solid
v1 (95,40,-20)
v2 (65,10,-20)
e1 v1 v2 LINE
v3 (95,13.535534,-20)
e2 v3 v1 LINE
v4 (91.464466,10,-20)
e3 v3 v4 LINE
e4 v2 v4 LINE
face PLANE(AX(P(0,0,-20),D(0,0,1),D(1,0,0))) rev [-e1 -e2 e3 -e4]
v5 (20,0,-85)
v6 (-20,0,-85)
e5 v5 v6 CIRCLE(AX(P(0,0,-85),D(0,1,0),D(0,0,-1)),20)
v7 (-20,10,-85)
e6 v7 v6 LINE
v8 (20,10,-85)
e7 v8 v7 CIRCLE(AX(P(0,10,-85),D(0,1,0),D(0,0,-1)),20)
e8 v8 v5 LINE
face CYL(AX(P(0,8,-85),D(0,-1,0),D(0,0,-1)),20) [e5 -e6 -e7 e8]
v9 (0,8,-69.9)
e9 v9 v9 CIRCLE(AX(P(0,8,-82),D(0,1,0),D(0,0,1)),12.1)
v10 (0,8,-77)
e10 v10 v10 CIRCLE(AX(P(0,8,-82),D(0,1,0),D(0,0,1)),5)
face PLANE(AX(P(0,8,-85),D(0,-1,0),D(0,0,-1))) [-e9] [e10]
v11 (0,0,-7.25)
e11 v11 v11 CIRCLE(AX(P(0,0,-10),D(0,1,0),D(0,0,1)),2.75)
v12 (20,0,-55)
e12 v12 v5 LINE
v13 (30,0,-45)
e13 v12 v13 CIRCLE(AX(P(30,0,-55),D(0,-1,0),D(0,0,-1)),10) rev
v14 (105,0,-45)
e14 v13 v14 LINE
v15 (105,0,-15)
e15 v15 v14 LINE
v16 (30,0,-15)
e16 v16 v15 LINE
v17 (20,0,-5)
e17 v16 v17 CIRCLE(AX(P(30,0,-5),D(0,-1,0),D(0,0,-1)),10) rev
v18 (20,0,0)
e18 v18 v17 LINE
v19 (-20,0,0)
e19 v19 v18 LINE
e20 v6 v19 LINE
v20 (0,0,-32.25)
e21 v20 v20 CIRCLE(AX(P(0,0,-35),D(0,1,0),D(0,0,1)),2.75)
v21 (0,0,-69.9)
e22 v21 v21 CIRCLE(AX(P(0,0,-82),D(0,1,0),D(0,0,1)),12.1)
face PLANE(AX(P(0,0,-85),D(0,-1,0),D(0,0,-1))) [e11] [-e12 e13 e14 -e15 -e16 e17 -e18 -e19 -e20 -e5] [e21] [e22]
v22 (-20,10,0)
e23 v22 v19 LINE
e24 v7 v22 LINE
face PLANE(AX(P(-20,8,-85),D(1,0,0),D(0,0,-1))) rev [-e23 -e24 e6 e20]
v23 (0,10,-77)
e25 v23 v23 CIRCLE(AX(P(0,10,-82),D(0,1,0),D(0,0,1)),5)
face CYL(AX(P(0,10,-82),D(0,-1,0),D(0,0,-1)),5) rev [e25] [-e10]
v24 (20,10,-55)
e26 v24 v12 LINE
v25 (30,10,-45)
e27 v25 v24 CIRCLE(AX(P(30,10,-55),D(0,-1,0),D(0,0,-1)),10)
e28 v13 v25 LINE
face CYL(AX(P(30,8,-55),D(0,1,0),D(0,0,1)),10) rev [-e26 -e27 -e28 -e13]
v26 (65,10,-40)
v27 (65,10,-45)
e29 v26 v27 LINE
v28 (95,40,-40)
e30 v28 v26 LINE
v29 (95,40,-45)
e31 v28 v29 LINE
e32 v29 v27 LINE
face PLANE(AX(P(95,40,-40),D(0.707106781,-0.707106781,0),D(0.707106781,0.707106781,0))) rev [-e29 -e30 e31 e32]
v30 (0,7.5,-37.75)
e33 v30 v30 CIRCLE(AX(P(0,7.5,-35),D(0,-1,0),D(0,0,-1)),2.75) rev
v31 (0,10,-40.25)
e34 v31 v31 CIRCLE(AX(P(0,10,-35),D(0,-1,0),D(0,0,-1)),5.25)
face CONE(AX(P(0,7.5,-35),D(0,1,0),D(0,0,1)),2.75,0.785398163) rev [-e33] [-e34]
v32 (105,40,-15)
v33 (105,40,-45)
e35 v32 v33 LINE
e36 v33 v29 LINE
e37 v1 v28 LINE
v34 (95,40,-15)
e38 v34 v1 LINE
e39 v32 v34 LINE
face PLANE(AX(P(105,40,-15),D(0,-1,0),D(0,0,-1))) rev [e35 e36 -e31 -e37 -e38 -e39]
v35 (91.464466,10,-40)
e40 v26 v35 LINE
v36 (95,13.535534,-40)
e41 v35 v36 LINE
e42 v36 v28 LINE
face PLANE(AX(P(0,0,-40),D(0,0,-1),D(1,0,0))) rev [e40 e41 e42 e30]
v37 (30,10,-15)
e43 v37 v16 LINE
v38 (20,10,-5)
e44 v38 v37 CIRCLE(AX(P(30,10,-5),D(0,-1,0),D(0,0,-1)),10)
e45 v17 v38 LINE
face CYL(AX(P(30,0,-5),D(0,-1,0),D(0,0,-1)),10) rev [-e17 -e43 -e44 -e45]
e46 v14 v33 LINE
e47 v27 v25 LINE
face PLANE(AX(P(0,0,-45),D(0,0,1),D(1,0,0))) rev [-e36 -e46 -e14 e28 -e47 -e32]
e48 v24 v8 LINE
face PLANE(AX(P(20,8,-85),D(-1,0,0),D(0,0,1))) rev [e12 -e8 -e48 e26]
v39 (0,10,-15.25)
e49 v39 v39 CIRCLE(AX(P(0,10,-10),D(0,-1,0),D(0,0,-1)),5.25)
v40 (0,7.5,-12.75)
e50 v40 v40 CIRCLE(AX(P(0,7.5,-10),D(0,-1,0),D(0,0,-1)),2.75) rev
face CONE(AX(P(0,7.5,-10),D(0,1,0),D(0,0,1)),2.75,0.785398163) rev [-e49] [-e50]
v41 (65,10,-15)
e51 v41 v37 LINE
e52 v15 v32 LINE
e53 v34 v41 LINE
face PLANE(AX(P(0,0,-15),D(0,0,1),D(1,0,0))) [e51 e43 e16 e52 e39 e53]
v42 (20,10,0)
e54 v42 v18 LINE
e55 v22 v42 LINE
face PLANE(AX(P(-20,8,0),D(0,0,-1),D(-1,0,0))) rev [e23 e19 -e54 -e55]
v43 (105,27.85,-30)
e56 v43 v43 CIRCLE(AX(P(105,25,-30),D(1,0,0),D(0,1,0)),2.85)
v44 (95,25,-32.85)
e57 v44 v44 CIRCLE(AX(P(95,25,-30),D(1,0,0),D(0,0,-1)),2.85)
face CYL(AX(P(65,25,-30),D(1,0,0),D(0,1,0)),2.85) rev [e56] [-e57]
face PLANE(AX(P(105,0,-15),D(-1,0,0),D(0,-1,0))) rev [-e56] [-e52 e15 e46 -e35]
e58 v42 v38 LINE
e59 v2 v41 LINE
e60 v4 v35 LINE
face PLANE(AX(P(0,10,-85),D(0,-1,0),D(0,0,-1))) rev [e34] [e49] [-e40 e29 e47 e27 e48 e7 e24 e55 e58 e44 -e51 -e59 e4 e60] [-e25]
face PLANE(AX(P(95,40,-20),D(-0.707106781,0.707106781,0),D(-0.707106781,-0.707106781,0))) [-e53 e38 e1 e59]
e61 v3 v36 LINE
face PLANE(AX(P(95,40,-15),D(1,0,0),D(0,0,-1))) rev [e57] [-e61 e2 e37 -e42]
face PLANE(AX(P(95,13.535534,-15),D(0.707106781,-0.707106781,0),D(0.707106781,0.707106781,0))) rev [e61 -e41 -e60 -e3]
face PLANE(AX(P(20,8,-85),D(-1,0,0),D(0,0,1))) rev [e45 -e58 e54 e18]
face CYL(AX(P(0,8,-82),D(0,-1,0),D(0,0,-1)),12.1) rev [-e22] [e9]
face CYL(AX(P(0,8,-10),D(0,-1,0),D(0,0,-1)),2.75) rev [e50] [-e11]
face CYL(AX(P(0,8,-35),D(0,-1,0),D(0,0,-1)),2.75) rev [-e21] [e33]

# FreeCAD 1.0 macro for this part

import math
import FreeCAD as App
import Part
import Sketcher
from FreeCAD import Vector
Q = App.Units.Quantity


def edges_at(feature, points):
    """Names of the edges that pass closest to the given points."""
    edges = feature.Shape.Edges
    near = lambda p: min(range(len(edges)), key=lambda i: edges[i].distToShape(Part.Vertex(*p))[0])
    return sorted({f"Edge{near(p) + 1}" for p in points})


def add_polygon(sketch, points):
    """Adds a closed chain of lines whose ends are joined by coincident constraints."""
    first, n = sketch.GeometryCount, len(points)
    for a, b in zip(points, points[1:] + points[:1]):
        sketch.addGeometry(Part.LineSegment(App.Vector(*a, 0), App.Vector(*b, 0)), False)
    for i in range(n):
        sketch.addConstraint(Sketcher.Constraint("Coincident", first + i, 2, first + (i + 1) % n, 1))

doc = App.newDocument("Part")
body = doc.addObject("PartDesign::Body", "Body")

sketch1 = doc.addObject("Sketcher::SketchObject", "Sketch")
body.addObject(sketch1)
sketch1.AttachmentSupport = (doc.XZ_Plane, [""])
sketch1.MapMode = "FlatFace"
sketch1.addGeometry(Part.LineSegment(Vector(-20, 0, 0), Vector(20, 0, 0)), False)
sketch1.addGeometry(Part.LineSegment(Vector(20, 0, 0), Vector(20, -85, 0)), False)
sketch1.addGeometry(Part.ArcOfCircle(Part.Circle(Vector(0, -85, 0), Vector(0, 0, 1), 20), math.radians(180), math.radians(360)), False)
sketch1.addGeometry(Part.LineSegment(Vector(-20, -85, 0), Vector(-20, 0, 0)), False)
sketch1.addGeometry(Part.Circle(Vector(0, -10, 0), Vector(0, 0, 1), 2.8), False)
sketch1.addGeometry(Part.Circle(Vector(0, -35, 0), Vector(0, 0, 1), 2.8), False)
sketch1.addGeometry(Part.Circle(Vector(0, -82, 0), Vector(0, 0, 1), 12.1), False)
sketch1.addConstraint(Sketcher.Constraint("Coincident", 0, 2, 1, 1))
sketch1.addConstraint(Sketcher.Constraint("Tangent", 1, 2, 2, 2))
sketch1.addConstraint(Sketcher.Constraint("Tangent", 2, 1, 3, 1))
sketch1.addConstraint(Sketcher.Constraint("Coincident", 3, 2, 0, 1))
sketch1.addConstraint(Sketcher.Constraint("Horizontal", 0))
sketch1.addConstraint(Sketcher.Constraint("Vertical", 1))
sketch1.addConstraint(Sketcher.Constraint("Vertical", 3))
sketch1.addConstraint(Sketcher.Constraint("Equal", 4, 5))
sketch1.addConstraint(Sketcher.Constraint("Symmetric", 0, 2, 3, 2, -1, 1))
sketch1.addConstraint(Sketcher.Constraint("PointOnObject", 4, 3, -2))
sketch1.addConstraint(Sketcher.Constraint("PointOnObject", 5, 3, -2))
sketch1.addConstraint(Sketcher.Constraint("PointOnObject", 6, 3, -2))
sketch1.addConstraint(Sketcher.Constraint("Radius", 2, Q("20 mm")))
sketch1.addConstraint(Sketcher.Constraint("Diameter", 4, Q("5.5 mm")))
sketch1.addConstraint(Sketcher.Constraint("Diameter", 6, Q("24.2 mm")))
sketch1.addConstraint(Sketcher.Constraint("DistanceY", 1, 2, 1, 1, Q("85 mm")))
sketch1.addConstraint(Sketcher.Constraint("DistanceY", 4, 3, -1, 1, Q("10 mm")))
sketch1.addConstraint(Sketcher.Constraint("DistanceY", 5, 3, -1, 1, Q("35 mm")))
sketch1.addConstraint(Sketcher.Constraint("DistanceY", 6, 3, -1, 1, Q("82 mm")))
pad1 = doc.addObject("PartDesign::Pad", "Pad")
body.addObject(pad1)
pad1.Profile = sketch1
pad1.Length = 8
pad1.Reversed = True

sketch2 = doc.addObject("Sketcher::SketchObject", "Sketch001")
body.addObject(sketch2)
sketch2.AttachmentSupport = (doc.XZ_Plane, [""])
sketch2.MapMode = "FlatFace"
sketch2.AttachmentOffset = App.Placement(Vector(0, 0, -8), App.Rotation())
sketch2.addGeometry(Part.LineSegment(Vector(-20, 0, 0), Vector(20, 0, 0)), False)
sketch2.addGeometry(Part.LineSegment(Vector(20, 0, 0), Vector(20, -85, 0)), False)
sketch2.addGeometry(Part.ArcOfCircle(Part.Circle(Vector(0, -85, 0), Vector(0, 0, 1), 20), math.radians(180), math.radians(360)), False)
sketch2.addGeometry(Part.LineSegment(Vector(-20, -85, 0), Vector(-20, 0, 0)), False)
sketch2.addGeometry(Part.Circle(Vector(0, -10, 0), Vector(0, 0, 1), 2.8), False)
sketch2.addGeometry(Part.Circle(Vector(0, -35, 0), Vector(0, 0, 1), 2.8), False)
sketch2.addGeometry(Part.Circle(Vector(0, -82, 0), Vector(0, 0, 1), 5), False)
sketch2.addConstraint(Sketcher.Constraint("Coincident", 0, 2, 1, 1))
sketch2.addConstraint(Sketcher.Constraint("Tangent", 1, 2, 2, 2))
sketch2.addConstraint(Sketcher.Constraint("Tangent", 2, 1, 3, 1))
sketch2.addConstraint(Sketcher.Constraint("Coincident", 3, 2, 0, 1))
sketch2.addConstraint(Sketcher.Constraint("Horizontal", 0))
sketch2.addConstraint(Sketcher.Constraint("Vertical", 1))
sketch2.addConstraint(Sketcher.Constraint("Vertical", 3))
sketch2.addConstraint(Sketcher.Constraint("Equal", 4, 5))
sketch2.addConstraint(Sketcher.Constraint("Symmetric", 0, 2, 3, 2, -1, 1))
sketch2.addConstraint(Sketcher.Constraint("PointOnObject", 4, 3, -2))
sketch2.addConstraint(Sketcher.Constraint("PointOnObject", 5, 3, -2))
sketch2.addConstraint(Sketcher.Constraint("PointOnObject", 6, 3, -2))
sketch2.addConstraint(Sketcher.Constraint("Diameter", 6, Q("10 mm")))
sketch2.addConstraint(Sketcher.Constraint("Radius", 2, Q("20 mm")))
sketch2.addConstraint(Sketcher.Constraint("Diameter", 4, Q("5.5 mm")))
sketch2.addConstraint(Sketcher.Constraint("DistanceY", 1, 2, 1, 1, Q("85 mm")))
sketch2.addConstraint(Sketcher.Constraint("DistanceY", 4, 3, -1, 1, Q("10 mm")))
sketch2.addConstraint(Sketcher.Constraint("DistanceY", 5, 3, -1, 1, Q("35 mm")))
sketch2.addConstraint(Sketcher.Constraint("DistanceY", 6, 3, -1, 1, Q("82 mm")))
pad2 = doc.addObject("PartDesign::Pad", "Pad001")
body.addObject(pad2)
pad2.Profile = sketch2
pad2.Length = 2
pad2.Reversed = True

sketch3 = doc.addObject("Sketcher::SketchObject", "Sketch002")
body.addObject(sketch3)
sketch3.AttachmentSupport = (doc.XY_Plane, [""])
sketch3.MapMode = "FlatFace"
sketch3.AttachmentOffset = App.Placement(Vector(0, 0, -30), App.Rotation())
add_polygon(sketch3, [(20, 0), (105, 0), (105, 40), (95, 40), (95, 14), (91, 10), (20, 10)])
sketch3.addConstraint(Sketcher.Constraint("Horizontal", 0))
sketch3.addConstraint(Sketcher.Constraint("Vertical", 1))
sketch3.addConstraint(Sketcher.Constraint("Horizontal", 2))
sketch3.addConstraint(Sketcher.Constraint("Vertical", 3))
sketch3.addConstraint(Sketcher.Constraint("Horizontal", 5))
sketch3.addConstraint(Sketcher.Constraint("Vertical", 6))
sketch3.addConstraint(Sketcher.Constraint("PointOnObject", 0, 2, -1))
sketch3.addConstraint(Sketcher.Constraint("Equal", 2, 6))
sketch3.addConstraint(Sketcher.Constraint("DistanceX", 0, 1, 0, 2, Q("85 mm")))
sketch3.addConstraint(Sketcher.Constraint("DistanceX", 2, 2, 2, 1, Q("10 mm")))
sketch3.addConstraint(Sketcher.Constraint("DistanceY", 1, 1, 1, 2, Q("40 mm")))
sketch3.addConstraint(Sketcher.Constraint("Angle", 4, Q("-135 deg")))
sketch3.addConstraint(Sketcher.Constraint("Distance", 4, Q("5 mm")))
sketch3.addConstraint(Sketcher.Constraint("DistanceX", -1, 1, 0, 2, Q("105 mm")))
pad3 = doc.addObject("PartDesign::Pad", "Pad002")
body.addObject(pad3)
pad3.Profile = sketch3
pad3.Length = 30
pad3.Midplane = True
doc.recompute()

fillet = doc.addObject("PartDesign::Fillet", "Fillet")
body.addObject(fillet)
fillet.Base = (pad3, edges_at(pad3, [(20, 5, -45), (20, 5, -15)]))
fillet.Radius = 10

sketch4 = doc.addObject("Sketcher::SketchObject", "Sketch003")
body.addObject(sketch4)
sketch4.AttachmentSupport = (doc.YZ_Plane, [""])
sketch4.MapMode = "FlatFace"
sketch4.AttachmentOffset = App.Placement(Vector(0, 0, 105), App.Rotation())
sketch4.addGeometry(Part.Circle(Vector(25, -30, 0), Vector(0, 0, 1), 2.9), False)
sketch4.addConstraint(Sketcher.Constraint("Diameter", 0, Q("5.7 mm")))
sketch4.addConstraint(Sketcher.Constraint("DistanceX", -1, 1, 0, 3, Q("25 mm")))
sketch4.addConstraint(Sketcher.Constraint("DistanceY", 0, 3, -1, 1, Q("30 mm")))
pocket1 = doc.addObject("PartDesign::Pocket", "Pocket")
body.addObject(pocket1)
pocket1.Profile = sketch4
pocket1.Length = 40

sketch5 = doc.addObject("Sketcher::SketchObject", "Sketch004")
body.addObject(sketch5)
sketch5.AttachmentSupport = (doc.XY_Plane, [""])
sketch5.MapMode = "FlatFace"
sketch5.AttachmentOffset = App.Placement(Vector(0, 0, -15), App.Rotation())
add_polygon(sketch5, [(65, 10), (95, 10), (95, 40)])
sketch5.addConstraint(Sketcher.Constraint("Horizontal", 0))
sketch5.addConstraint(Sketcher.Constraint("Vertical", 1))
sketch5.addConstraint(Sketcher.Constraint("Equal", 0, 1))
sketch5.addConstraint(Sketcher.Constraint("DistanceX", 0, 1, 0, 2, Q("30 mm")))
sketch5.addConstraint(Sketcher.Constraint("DistanceX", -1, 1, 0, 2, Q("95 mm")))
sketch5.addConstraint(Sketcher.Constraint("DistanceY", -1, 1, 0, 2, Q("10 mm")))
pad4 = doc.addObject("PartDesign::Pad", "Pad003")
body.addObject(pad4)
pad4.Profile = sketch5
pad4.Length = 5
pad4.Reversed = True
doc.recompute()

datumplane = doc.addObject("PartDesign::Plane", "DatumPlane")
body.addObject(datumplane)
datumplane.AttachmentSupport = (doc.XY_Plane, [""])
datumplane.MapMode = "FlatFace"
datumplane.AttachmentOffset = App.Placement(Vector(0, 0, -30), App.Rotation())
mirrored = doc.addObject("PartDesign::Mirrored", "Mirrored")
body.addObject(mirrored)
mirrored.Originals = [pad4]
mirrored.MirrorPlane = (datumplane, [""])
body.Tip = mirrored
doc.recompute()

chamfer = doc.addObject("PartDesign::Chamfer", "Chamfer")
body.addObject(chamfer)
chamfer.Base = (mirrored, edges_at(mirrored, [(0, 10, -12.75), (0, 10, -37.75)]))
chamfer.Size = 2.5

doc.recompute()
